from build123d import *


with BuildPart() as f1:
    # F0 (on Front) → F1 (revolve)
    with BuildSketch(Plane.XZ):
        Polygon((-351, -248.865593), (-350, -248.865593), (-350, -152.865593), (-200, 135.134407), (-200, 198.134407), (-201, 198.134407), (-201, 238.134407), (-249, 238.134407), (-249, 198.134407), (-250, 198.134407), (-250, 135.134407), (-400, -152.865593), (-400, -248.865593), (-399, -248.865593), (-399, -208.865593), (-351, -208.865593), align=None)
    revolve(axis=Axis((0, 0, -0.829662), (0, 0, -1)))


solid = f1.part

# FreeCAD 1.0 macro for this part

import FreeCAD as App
import Part
import Sketcher

doc = App.newDocument("Part")
body = doc.addObject("PartDesign::Body", "Body")

sketch1 = doc.addObject("Sketcher::SketchObject", "Sketch")
body.addObject(sketch1)
sketch1.AttachmentSupport = (doc.XZ_Plane, [""])
sketch1.MapMode = "FlatFace"
sketch1.addGeometry([
    Part.LineSegment(App.Vector(-351, -248.9, 0), App.Vector(-350, -248.9, 0)),
    Part.LineSegment(App.Vector(-350, -248.9, 0), App.Vector(-350, -152.9, 0)),
    Part.LineSegment(App.Vector(-350, -152.9, 0), App.Vector(-200, 135.1, 0)),
    Part.LineSegment(App.Vector(-200, 135.1, 0), App.Vector(-200, 198.1, 0)),
    Part.LineSegment(App.Vector(-200, 198.1, 0), App.Vector(-201, 198.1, 0)),
    Part.LineSegment(App.Vector(-201, 198.1, 0), App.Vector(-201, 238.1, 0)),
    Part.LineSegment(App.Vector(-201, 238.1, 0), App.Vector(-249, 238.1, 0)),
    Part.LineSegment(App.Vector(-249, 238.1, 0), App.Vector(-249, 198.1, 0)),
    Part.LineSegment(App.Vector(-249, 198.1, 0), App.Vector(-250, 198.1, 0)),
    Part.LineSegment(App.Vector(-250, 198.1, 0), App.Vector(-250, 135.1, 0)),
    Part.LineSegment(App.Vector(-250, 135.1, 0), App.Vector(-400, -152.9, 0)),
    Part.LineSegment(App.Vector(-400, -152.9, 0), App.Vector(-400, -248.9, 0)),
    Part.LineSegment(App.Vector(-400, -248.9, 0), App.Vector(-399, -248.9, 0)),
    Part.LineSegment(App.Vector(-399, -248.9, 0), App.Vector(-399, -208.9, 0)),
    Part.LineSegment(App.Vector(-399, -208.9, 0), App.Vector(-351, -208.9, 0)),
    Part.LineSegment(App.Vector(-351, -208.9, 0), App.Vector(-351, -248.9, 0)),
], False)
sketch1.addConstraint([
    Sketcher.Constraint("Coincident", 0, 2, 1, 1),
    Sketcher.Constraint("Coincident", 1, 2, 2, 1),
    Sketcher.Constraint("Coincident", 2, 2, 3, 1),
    Sketcher.Constraint("Coincident", 3, 2, 4, 1),
    Sketcher.Constraint("Coincident", 4, 2, 5, 1),
    Sketcher.Constraint("Coincident", 5, 2, 6, 1),
    Sketcher.Constraint("Coincident", 6, 2, 7, 1),
    Sketcher.Constraint("Coincident", 7, 2, 8, 1),
    Sketcher.Constraint("Coincident", 8, 2, 9, 1),
    Sketcher.Constraint("Coincident", 9, 2, 10, 1),
    Sketcher.Constraint("Coincident", 10, 2, 11, 1),
    Sketcher.Constraint("Coincident", 11, 2, 12, 1),
    Sketcher.Constraint("Coincident", 12, 2, 13, 1),
    Sketcher.Constraint("Coincident", 13, 2, 14, 1),
    Sketcher.Constraint("Coincident", 14, 2, 15, 1),
    Sketcher.Constraint("Coincident", 15, 2, 0, 1),
    Sketcher.Constraint("Horizontal", 0),
    Sketcher.Constraint("Vertical", 1),
    Sketcher.Constraint("Vertical", 3),
    Sketcher.Constraint("Horizontal", 4),
    Sketcher.Constraint("Vertical", 5),
    Sketcher.Constraint("Horizontal", 6),
    Sketcher.Constraint("Vertical", 7),
    Sketcher.Constraint("Horizontal", 8),
    Sketcher.Constraint("Vertical", 9),
    Sketcher.Constraint("Vertical", 11),
    Sketcher.Constraint("Horizontal", 12),
    Sketcher.Constraint("Vertical", 13),
    Sketcher.Constraint("Horizontal", 14),
    Sketcher.Constraint("Vertical", 15),
    Sketcher.Constraint("Parallel", 2, 10),
    Sketcher.Constraint("Horizontal", 4, 2, 7, 2),
    Sketcher.Constraint("Horizontal", 2, 2, 9, 2),
    Sketcher.Constraint("Horizontal", 1, 2, 10, 2),
    Sketcher.Constraint("Horizontal", 0, 2, 11, 2),
    Sketcher.Constraint("Equal", 0, 4),
    Sketcher.Constraint("Equal", 4, 8),
    Sketcher.Constraint("Equal", 8, 12),
    Sketcher.Constraint("Equal", 7, 13),
    Sketcher.Constraint("DistanceX", 0, 1, 0, 2, 1.0),
    Sketcher.Constraint("DistanceX", 6, 2, 6, 1, 48.0),
    Sketcher.Constraint("DistanceY", 1, 1, 1, 2, 96.0),
    Sketcher.Constraint("DistanceY", 3, 1, 3, 2, 63.0),
    Sketcher.Constraint("DistanceY", 5, 1, 5, 2, 40.0),
    Sketcher.Constraint("DistanceX", 0, 2, -1, 1, 350.0),
    Sketcher.Constraint("DistanceX", 2, 2, -1, 1, 200.0),
    Sketcher.Constraint("DistanceY", 1, 2, 2, 2, 288.0),
    Sketcher.Constraint("DistanceY", 0, 2, -1, 1, 248.865593),
])
revolution = doc.addObject("PartDesign::Revolution", "Revolution")
body.addObject(revolution)
revolution.Profile = sketch1
revolution.ReferenceAxis = (sketch1, ["V_Axis"])
revolution.Angle = 360

doc.recompute()
